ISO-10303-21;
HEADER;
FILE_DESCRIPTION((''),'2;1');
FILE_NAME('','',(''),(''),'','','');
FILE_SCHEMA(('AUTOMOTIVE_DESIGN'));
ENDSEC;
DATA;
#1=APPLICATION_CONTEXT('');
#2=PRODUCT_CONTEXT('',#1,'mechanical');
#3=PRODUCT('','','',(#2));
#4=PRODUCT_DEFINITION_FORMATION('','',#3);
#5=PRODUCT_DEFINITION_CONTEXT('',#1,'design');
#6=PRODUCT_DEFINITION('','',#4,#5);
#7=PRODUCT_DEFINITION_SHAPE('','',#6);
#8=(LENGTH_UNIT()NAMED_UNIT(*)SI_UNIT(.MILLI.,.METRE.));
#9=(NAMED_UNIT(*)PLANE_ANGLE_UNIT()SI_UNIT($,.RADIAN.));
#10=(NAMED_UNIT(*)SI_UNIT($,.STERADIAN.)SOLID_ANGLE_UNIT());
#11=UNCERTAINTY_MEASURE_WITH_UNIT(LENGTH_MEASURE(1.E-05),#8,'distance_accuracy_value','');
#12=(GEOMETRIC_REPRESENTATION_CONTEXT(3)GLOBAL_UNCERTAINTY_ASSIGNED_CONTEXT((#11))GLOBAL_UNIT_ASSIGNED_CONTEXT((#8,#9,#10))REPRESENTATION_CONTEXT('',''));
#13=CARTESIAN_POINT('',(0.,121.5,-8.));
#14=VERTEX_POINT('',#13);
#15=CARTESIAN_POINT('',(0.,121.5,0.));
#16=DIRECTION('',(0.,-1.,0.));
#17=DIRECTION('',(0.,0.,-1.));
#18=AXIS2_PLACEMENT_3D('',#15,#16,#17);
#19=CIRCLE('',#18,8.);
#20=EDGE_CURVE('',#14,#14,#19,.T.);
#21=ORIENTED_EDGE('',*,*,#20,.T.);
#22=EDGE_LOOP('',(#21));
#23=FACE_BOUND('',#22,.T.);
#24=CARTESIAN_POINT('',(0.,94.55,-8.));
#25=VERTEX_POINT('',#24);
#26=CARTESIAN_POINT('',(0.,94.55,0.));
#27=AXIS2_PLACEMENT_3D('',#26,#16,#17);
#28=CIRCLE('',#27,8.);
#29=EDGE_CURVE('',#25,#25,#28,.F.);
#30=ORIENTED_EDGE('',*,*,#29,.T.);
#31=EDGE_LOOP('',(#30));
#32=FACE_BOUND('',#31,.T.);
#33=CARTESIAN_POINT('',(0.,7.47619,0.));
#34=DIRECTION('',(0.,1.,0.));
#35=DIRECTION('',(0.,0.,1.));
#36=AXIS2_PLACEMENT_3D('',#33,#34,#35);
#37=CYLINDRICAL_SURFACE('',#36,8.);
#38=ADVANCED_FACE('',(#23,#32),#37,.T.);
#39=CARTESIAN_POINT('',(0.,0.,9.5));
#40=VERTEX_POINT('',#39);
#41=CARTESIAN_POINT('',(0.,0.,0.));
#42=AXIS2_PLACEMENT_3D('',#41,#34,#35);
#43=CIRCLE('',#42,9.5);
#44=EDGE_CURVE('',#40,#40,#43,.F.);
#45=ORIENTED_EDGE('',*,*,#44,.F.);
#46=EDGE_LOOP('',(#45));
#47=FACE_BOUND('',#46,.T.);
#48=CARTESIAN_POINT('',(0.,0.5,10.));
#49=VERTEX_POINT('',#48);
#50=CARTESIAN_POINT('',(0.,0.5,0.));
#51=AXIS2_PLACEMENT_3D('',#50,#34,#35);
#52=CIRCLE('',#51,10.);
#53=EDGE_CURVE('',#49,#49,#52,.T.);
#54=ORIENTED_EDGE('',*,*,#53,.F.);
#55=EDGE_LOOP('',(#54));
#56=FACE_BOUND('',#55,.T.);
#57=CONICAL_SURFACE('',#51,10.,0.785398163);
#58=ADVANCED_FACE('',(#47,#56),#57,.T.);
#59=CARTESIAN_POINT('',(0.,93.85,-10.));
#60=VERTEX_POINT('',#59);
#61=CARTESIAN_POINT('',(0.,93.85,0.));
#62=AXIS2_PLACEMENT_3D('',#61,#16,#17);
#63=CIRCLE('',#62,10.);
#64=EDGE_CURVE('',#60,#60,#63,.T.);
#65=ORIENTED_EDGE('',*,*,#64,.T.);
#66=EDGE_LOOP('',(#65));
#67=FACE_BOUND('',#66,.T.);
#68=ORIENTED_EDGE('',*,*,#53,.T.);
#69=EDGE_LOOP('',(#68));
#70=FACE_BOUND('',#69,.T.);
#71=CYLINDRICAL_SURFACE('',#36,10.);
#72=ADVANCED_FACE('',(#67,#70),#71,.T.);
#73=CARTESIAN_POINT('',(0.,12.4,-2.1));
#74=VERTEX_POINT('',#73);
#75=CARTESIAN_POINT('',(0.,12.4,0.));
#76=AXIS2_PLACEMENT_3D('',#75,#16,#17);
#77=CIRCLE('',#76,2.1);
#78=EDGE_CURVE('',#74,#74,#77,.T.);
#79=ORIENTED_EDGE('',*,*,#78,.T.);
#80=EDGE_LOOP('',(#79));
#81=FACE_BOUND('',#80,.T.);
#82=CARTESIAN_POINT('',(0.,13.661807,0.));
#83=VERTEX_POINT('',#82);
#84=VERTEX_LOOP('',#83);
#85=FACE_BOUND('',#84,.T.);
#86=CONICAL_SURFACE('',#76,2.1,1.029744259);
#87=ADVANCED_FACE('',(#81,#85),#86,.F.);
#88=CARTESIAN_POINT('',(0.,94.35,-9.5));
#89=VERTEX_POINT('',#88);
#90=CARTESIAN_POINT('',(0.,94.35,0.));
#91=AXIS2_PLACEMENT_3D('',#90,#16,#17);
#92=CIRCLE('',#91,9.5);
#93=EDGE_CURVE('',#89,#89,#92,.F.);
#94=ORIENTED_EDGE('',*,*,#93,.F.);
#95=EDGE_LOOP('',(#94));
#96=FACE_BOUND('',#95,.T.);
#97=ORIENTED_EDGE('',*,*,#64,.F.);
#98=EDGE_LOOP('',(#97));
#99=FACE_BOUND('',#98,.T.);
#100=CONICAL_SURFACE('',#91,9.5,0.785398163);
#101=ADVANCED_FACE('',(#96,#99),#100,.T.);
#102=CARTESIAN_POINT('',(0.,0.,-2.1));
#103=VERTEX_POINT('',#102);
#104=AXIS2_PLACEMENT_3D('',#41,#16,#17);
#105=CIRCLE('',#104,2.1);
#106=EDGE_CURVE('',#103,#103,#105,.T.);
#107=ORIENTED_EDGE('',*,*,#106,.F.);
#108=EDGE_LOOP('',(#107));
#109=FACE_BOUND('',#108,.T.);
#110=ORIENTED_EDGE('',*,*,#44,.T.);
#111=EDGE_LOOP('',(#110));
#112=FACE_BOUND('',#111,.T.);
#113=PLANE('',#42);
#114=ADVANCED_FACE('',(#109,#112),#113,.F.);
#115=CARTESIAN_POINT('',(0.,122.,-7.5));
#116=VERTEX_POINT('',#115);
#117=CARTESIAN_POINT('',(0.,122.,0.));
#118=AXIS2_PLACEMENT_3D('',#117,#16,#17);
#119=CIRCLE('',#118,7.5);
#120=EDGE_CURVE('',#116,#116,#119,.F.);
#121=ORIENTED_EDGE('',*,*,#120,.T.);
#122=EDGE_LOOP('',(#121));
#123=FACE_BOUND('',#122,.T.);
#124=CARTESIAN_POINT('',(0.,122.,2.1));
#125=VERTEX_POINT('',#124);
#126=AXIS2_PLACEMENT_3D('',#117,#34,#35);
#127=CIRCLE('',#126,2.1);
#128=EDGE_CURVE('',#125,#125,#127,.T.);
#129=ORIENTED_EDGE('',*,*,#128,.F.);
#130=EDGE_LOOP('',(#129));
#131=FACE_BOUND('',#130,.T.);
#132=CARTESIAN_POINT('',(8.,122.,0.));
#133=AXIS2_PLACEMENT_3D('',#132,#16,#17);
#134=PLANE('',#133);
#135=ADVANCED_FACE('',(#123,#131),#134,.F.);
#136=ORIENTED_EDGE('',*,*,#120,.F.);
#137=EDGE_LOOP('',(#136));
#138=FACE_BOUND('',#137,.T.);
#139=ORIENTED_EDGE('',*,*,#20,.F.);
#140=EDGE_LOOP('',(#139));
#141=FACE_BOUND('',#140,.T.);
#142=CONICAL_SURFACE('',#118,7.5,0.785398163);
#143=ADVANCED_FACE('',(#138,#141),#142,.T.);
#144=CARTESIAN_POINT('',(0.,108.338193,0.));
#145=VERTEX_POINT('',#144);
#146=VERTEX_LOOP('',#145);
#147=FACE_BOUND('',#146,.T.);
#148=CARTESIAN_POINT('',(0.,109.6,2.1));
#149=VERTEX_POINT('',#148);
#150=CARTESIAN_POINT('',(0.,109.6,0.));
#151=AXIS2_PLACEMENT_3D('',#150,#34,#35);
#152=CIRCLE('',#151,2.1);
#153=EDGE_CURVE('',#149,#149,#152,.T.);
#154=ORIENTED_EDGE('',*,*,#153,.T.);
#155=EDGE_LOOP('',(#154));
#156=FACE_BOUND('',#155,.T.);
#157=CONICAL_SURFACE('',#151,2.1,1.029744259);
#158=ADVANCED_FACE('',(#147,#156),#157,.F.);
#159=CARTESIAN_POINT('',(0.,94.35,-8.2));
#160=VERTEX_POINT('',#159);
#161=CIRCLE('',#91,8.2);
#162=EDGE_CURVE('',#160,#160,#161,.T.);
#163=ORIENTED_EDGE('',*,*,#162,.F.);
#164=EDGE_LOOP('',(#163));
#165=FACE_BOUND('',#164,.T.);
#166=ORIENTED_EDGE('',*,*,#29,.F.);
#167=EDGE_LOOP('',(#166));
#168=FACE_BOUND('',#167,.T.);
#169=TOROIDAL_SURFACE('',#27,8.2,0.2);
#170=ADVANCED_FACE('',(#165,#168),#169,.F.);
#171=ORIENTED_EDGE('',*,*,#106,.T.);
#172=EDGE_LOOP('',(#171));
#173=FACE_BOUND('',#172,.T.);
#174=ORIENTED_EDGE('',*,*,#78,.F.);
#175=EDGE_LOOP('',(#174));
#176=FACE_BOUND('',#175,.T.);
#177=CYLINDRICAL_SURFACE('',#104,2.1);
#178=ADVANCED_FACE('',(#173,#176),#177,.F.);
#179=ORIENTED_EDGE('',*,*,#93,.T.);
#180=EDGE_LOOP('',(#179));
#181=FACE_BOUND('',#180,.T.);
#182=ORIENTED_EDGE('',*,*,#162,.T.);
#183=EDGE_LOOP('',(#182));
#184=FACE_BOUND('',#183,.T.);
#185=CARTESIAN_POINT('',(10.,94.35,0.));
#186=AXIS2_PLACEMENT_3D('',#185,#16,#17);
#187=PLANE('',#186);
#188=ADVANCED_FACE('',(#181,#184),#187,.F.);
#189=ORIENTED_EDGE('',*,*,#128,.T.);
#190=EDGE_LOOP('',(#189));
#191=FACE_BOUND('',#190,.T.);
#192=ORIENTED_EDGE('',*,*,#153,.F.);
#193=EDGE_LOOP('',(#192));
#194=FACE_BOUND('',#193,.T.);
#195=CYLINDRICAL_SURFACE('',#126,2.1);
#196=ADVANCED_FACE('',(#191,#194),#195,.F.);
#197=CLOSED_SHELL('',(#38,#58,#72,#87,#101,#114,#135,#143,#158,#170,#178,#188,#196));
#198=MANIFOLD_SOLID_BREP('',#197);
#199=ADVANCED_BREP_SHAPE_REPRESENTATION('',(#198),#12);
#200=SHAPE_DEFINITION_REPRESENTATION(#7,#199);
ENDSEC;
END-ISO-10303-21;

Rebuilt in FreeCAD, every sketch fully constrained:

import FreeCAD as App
import Part
import Sketcher
Q = App.Units.Quantity


def edges_at(feature, points):
    """Names of the edges that pass closest to the given points."""
    edges = feature.Shape.Edges
    near = lambda p: min(range(len(edges)), key=lambda i: edges[i].distToShape(Part.Vertex(*p))[0])
    return sorted({f"Edge{near(p) + 1}" for p in points})


def add_polygon(sketch, points):
    """Adds a closed chain of lines whose ends are joined by coincident constraints."""
    first, n = sketch.GeometryCount, len(points)
    for a, b in zip(points, points[1:] + points[:1]):
        sketch.addGeometry(Part.LineSegment(App.Vector(*a, 0), App.Vector(*b, 0)), False)
    for i in range(n):
        sketch.addConstraint(Sketcher.Constraint("Coincident", first + i, 2, first + (i + 1) % n, 1))

doc = App.newDocument("Part")
body = doc.addObject("PartDesign::Body", "Body")

# Sketch on XY plane
sketch1 = body.newObject("Sketcher::SketchObject", "Sketch")
sketch1.AttachmentSupport = (doc.getObject("XY_Plane"), [""])
sketch1.MapMode = "FlatFace"
add_polygon(sketch1, [(0, 0), (10, 0), (10, 94.35), (8, 94.35), (8, 122), (0, 122)])  # lines 0-5
sketch1.addConstraint([
    Sketcher.Constraint("Horizontal", 0),
    Sketcher.Constraint("Vertical", 1),
    Sketcher.Constraint("Horizontal", 2),
    Sketcher.Constraint("Vertical", 3),
    Sketcher.Constraint("Horizontal", 4),
    Sketcher.Constraint("Vertical", 5),
    Sketcher.Constraint("Coincident", 5, 2, -1, 1),
    Sketcher.Constraint("DistanceX", 0, 1, 0, 2, Q("10 mm")),
    Sketcher.Constraint("DistanceX", 2, 2, 2, 1, Q("2 mm")),
    Sketcher.Constraint("DistanceY", 5, 2, 5, 1, Q("122 mm")),
    Sketcher.Constraint("DistanceY", 1, 1, 1, 2, Q("94.35 mm")),
])
revolution = body.newObject("PartDesign::Revolution", "Revolution")
revolution.Profile = sketch1
revolution.ReferenceAxis = (sketch1, ["V_Axis"])
revolution.Angle = 360

# Sketch on YZ plane
sketch2 = body.newObject("Sketcher::SketchObject", "Sketch001")
sketch2.AttachmentSupport = (doc.getObject("YZ_Plane"), [""])
sketch2.MapMode = "FlatFace"
add_polygon(sketch2, [(13.661807, 0), (0, 0), (0, -2.1), (12.4, -2.1)])  # lines 0-3
sketch2.addConstraint([
    Sketcher.Constraint("Horizontal", 0),
    Sketcher.Constraint("Vertical", 1),
    Sketcher.Constraint("Horizontal", 2),
    Sketcher.Constraint("Coincident", 0, 2, -1, 1),
    Sketcher.Constraint("Angle", 3, Q("59 deg")),
    Sketcher.Constraint("DistanceX", 2, 1, 2, 2, Q("12.4 mm")),
    Sketcher.Constraint("DistanceY", 1, 2, 1, 1, Q("2.1 mm")),
])
groove = body.newObject("PartDesign::Groove", "Groove")
groove.Profile = sketch2
groove.ReferenceAxis = (sketch2, ["H_Axis"])
groove.Angle = 360
doc.recompute()

datumplane = body.newObject("PartDesign::Plane", "DatumPlane")
datumplane.AttachmentSupport = (doc.getObject("XZ_Plane"), [""])
datumplane.MapMode = "FlatFace"
datumplane.AttachmentOffset = App.Placement(App.Vector(0, 0, -61), App.Rotation())
mirrored = body.newObject("PartDesign::Mirrored", "Mirrored")
mirrored.Originals = [groove]
mirrored.MirrorPlane = (datumplane, [""])
body.Tip = mirrored
doc.recompute()

fillet = body.newObject("PartDesign::Fillet", "Fillet")
fillet.Base = (mirrored, edges_at(mirrored, [(0, 94.35, -8)]))
fillet.Radius = 0.2
doc.recompute()

chamfer = body.newObject("PartDesign::Chamfer", "Chamfer")
chamfer.Base = (fillet, edges_at(fillet, [(0, 122, -8), (0, 94.35, -10), (0, 0, -10)]))
chamfer.Size = 0.5

doc.recompute()
